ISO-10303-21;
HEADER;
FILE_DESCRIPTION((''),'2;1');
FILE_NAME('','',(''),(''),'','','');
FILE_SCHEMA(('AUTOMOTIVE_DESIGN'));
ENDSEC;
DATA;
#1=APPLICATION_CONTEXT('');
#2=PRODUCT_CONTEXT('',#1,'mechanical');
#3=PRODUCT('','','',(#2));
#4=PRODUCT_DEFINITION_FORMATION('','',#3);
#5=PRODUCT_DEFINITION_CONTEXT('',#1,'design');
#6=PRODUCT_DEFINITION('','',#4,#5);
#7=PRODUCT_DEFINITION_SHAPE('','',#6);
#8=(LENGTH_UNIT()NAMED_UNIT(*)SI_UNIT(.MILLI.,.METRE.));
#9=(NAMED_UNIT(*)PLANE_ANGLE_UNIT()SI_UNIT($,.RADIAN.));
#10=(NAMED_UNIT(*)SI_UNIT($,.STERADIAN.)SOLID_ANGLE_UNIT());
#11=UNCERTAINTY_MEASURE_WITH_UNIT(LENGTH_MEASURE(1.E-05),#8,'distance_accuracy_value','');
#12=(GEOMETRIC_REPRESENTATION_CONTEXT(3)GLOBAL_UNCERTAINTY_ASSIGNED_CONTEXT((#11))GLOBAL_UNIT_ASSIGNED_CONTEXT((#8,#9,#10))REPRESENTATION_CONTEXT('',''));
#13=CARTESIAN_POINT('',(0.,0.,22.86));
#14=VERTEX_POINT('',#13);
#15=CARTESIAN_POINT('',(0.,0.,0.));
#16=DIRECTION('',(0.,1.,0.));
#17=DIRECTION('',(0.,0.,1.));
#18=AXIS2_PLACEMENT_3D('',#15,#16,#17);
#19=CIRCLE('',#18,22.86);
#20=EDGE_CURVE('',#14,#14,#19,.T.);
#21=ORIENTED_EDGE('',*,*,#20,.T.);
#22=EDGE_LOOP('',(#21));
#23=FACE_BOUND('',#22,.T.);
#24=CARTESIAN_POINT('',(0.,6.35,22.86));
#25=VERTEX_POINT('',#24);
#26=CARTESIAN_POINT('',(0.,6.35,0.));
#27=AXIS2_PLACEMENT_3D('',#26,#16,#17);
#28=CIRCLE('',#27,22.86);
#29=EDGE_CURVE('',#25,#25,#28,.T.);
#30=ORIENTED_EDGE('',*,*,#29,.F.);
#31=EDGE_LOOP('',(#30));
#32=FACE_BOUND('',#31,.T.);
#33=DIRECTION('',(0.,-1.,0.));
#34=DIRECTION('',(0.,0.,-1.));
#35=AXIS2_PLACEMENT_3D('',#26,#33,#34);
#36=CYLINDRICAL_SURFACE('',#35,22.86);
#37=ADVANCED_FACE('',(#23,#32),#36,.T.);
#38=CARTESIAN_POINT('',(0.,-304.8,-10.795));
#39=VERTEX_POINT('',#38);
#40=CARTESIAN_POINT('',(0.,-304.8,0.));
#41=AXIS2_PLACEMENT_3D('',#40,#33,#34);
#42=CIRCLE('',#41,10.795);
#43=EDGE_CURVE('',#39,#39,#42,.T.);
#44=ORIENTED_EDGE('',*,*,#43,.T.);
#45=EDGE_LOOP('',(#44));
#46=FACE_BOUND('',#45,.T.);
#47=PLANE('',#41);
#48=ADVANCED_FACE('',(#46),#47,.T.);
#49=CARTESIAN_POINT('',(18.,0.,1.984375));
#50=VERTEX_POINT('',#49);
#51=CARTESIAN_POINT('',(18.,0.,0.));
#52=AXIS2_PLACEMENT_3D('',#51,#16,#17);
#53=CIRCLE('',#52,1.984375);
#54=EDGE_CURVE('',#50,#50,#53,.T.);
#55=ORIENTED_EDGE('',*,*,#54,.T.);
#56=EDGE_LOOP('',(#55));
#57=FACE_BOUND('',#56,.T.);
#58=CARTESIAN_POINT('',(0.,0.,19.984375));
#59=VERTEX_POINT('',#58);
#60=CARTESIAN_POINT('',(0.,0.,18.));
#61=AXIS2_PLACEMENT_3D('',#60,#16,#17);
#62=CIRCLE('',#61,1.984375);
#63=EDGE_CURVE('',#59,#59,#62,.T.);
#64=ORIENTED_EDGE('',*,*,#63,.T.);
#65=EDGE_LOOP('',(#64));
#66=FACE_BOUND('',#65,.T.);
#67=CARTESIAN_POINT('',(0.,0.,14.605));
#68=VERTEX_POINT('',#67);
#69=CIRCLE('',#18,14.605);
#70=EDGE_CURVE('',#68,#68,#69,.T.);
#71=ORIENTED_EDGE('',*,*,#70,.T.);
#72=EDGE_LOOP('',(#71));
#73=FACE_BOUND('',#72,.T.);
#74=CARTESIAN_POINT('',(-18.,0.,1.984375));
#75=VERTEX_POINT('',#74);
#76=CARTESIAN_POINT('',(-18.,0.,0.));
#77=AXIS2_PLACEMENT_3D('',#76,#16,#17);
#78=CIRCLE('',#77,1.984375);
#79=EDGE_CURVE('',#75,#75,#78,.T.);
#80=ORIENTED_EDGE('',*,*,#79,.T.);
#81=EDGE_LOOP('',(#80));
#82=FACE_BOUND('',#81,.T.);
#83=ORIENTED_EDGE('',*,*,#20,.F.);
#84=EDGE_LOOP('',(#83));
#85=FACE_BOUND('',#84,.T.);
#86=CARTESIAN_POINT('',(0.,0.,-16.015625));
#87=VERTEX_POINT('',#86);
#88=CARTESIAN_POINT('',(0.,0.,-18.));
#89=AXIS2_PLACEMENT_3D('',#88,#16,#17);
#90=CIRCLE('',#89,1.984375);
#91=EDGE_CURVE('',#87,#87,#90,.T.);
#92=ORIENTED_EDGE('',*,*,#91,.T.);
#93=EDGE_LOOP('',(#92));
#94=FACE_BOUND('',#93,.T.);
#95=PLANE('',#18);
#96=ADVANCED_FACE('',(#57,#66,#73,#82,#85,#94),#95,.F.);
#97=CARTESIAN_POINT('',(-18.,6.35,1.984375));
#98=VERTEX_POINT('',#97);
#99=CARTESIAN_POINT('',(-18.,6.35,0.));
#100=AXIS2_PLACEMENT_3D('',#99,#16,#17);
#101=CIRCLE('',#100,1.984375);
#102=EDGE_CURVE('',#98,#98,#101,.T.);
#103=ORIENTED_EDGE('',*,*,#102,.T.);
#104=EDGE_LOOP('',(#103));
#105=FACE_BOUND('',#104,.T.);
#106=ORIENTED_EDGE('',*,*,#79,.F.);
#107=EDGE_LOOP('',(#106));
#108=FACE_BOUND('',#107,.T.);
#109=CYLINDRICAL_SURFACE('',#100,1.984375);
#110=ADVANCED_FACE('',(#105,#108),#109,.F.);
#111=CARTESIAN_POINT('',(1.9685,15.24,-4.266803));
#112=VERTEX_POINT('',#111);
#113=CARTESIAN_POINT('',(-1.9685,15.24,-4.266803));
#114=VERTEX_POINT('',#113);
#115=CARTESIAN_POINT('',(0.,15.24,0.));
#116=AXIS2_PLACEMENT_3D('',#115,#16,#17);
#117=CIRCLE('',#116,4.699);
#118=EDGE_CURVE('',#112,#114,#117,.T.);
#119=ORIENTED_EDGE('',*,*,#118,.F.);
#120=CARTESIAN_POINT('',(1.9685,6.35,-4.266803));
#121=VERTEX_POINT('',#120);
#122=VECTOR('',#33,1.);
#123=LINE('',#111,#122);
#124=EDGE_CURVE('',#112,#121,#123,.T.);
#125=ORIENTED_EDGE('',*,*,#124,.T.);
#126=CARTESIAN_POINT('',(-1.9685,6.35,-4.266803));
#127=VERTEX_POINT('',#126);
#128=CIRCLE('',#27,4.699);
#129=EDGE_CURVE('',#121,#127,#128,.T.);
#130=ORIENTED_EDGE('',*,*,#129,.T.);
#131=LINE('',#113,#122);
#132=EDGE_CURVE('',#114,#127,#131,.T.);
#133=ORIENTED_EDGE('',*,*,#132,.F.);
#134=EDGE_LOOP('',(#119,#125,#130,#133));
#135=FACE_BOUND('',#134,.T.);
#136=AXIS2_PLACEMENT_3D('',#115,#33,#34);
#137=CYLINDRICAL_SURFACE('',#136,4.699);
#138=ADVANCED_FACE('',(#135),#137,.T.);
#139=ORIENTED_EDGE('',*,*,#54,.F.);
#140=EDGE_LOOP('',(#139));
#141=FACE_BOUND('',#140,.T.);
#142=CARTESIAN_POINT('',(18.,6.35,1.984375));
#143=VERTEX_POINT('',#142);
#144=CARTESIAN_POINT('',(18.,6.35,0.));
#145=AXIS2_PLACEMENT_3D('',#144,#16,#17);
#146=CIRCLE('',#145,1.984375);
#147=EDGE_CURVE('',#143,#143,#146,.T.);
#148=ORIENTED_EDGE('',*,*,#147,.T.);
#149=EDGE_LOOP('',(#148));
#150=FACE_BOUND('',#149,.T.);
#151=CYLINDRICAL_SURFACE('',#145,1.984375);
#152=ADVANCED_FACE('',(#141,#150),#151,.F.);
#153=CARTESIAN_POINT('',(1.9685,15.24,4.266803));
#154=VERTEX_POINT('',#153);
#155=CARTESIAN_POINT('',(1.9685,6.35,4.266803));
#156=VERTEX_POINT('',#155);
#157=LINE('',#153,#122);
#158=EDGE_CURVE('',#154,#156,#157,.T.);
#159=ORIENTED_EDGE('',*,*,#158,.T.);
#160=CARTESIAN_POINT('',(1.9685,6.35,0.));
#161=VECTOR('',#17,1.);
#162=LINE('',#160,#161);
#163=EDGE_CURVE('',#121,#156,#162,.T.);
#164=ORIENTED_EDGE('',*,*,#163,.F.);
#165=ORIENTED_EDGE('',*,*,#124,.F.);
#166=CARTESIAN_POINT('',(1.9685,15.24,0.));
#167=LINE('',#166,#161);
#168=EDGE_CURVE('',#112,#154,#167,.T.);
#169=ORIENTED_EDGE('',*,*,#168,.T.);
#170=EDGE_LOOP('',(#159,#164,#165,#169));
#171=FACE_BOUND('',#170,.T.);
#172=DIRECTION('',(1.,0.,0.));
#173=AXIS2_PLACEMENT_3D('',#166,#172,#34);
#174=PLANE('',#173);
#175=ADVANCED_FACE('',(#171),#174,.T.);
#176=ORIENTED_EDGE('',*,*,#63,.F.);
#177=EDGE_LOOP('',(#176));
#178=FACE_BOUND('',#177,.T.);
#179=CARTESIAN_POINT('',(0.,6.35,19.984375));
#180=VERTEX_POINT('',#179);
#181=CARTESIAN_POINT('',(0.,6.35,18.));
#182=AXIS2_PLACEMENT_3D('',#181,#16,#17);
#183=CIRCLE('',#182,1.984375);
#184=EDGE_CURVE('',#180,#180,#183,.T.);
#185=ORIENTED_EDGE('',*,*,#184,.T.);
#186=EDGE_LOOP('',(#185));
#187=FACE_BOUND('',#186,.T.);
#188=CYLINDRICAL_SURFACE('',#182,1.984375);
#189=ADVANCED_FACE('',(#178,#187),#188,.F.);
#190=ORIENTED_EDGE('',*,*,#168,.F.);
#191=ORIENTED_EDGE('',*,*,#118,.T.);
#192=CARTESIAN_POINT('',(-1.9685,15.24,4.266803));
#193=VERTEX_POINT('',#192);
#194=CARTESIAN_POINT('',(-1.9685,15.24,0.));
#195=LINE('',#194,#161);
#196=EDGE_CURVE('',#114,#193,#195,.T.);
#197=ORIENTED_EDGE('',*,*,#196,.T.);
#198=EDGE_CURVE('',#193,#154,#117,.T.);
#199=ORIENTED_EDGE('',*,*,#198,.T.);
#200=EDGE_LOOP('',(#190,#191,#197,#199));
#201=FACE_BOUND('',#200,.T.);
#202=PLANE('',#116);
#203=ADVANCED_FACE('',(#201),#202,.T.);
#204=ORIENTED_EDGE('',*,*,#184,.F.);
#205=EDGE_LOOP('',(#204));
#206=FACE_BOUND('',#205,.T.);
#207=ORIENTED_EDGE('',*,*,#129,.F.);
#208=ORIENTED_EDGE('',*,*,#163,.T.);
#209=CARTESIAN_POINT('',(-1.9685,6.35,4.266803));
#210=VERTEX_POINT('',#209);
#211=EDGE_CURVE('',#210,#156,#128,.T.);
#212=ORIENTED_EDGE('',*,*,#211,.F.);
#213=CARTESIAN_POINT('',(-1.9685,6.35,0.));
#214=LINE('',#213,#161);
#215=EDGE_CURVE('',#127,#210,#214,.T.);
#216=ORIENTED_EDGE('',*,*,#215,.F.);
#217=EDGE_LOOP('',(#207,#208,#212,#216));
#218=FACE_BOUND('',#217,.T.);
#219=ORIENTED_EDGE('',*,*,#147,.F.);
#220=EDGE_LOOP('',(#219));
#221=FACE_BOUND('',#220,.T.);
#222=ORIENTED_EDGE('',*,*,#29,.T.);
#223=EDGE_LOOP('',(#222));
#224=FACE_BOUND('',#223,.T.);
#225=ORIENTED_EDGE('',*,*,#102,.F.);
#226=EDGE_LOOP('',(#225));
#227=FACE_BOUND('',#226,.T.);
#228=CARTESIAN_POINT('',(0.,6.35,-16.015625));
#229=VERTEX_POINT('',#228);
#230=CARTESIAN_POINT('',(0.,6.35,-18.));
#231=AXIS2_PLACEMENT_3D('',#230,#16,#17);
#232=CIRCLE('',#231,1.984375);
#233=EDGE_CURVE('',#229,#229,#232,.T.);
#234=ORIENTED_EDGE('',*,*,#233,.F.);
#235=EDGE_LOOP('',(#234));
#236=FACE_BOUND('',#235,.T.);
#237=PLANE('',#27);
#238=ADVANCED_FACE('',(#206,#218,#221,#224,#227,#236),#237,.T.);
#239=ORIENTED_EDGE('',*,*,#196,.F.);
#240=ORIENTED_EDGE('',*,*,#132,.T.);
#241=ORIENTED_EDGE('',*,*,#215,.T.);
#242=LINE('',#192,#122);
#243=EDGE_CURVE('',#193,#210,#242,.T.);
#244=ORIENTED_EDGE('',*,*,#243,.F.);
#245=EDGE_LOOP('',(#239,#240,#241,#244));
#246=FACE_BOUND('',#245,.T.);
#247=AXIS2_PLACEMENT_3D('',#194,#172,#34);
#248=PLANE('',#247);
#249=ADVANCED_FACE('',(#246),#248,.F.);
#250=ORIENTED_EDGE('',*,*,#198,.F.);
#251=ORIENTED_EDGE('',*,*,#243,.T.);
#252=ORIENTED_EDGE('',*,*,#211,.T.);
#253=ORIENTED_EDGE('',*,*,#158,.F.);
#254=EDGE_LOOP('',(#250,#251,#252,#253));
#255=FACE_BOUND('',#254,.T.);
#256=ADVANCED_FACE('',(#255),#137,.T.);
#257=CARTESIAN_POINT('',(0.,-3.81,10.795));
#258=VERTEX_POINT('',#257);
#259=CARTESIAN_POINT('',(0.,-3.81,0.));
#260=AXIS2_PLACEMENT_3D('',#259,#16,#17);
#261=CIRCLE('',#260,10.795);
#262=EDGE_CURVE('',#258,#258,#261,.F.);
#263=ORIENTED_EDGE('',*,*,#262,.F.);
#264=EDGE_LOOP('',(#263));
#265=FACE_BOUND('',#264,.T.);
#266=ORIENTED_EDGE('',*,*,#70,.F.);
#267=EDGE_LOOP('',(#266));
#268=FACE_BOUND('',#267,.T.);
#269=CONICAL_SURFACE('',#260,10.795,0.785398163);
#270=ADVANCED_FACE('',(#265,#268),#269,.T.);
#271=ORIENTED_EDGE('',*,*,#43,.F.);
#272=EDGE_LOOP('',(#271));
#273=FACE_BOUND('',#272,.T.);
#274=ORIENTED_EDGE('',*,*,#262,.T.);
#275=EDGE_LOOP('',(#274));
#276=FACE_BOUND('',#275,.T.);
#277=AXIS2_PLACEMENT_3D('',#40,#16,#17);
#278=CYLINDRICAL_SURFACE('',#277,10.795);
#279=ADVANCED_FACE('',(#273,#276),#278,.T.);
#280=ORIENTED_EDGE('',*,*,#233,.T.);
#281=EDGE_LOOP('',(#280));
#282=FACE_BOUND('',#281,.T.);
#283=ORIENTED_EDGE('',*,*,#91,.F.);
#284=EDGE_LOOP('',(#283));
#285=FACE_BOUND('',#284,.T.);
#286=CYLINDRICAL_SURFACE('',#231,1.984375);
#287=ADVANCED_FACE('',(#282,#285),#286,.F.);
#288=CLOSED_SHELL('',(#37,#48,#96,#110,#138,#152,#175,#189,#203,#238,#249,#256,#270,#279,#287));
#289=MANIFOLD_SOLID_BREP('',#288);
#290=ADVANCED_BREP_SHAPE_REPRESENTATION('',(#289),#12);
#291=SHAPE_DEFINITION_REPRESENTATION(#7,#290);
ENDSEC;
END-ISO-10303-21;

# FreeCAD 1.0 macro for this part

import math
import FreeCAD as App
import Part
import Sketcher
from FreeCAD import Vector
Q = App.Units.Quantity


def edges_at(feature, points):
    """Names of the edges that pass closest to the given points."""
    edges = feature.Shape.Edges
    near = lambda p: min(range(len(edges)), key=lambda i: edges[i].distToShape(Part.Vertex(*p))[0])
    return sorted({f"Edge{near(p) + 1}" for p in points})

doc = App.newDocument("Part")
body = doc.addObject("PartDesign::Body", "Body")

# Sketch on XZ plane
sketch1 = doc.addObject("Sketcher::SketchObject", "Sketch")
body.addObject(sketch1)
sketch1.AttachmentSupport = (doc.XZ_Plane, [""])
sketch1.MapMode = "FlatFace"
sketch1.addGeometry(Part.Circle(Vector(0, 0, 0), Vector(0, 0, 1), 23), False)
sketch1.addConstraint([
    Sketcher.Constraint("Coincident", 0, 3, -1, 1),
    Sketcher.Constraint("Diameter", 0, Q("1.8 in")),
])
pad1 = doc.addObject("PartDesign::Pad", "Pad")
body.addObject(pad1)
pad1.Profile = sketch1
pad1.Length = Q("0.25 in")
pad1.Reversed = True

# Sketch on XZ plane
sketch2 = doc.addObject("Sketcher::SketchObject", "Sketch001")
body.addObject(sketch2)
sketch2.AttachmentSupport = (doc.XZ_Plane, [""])
sketch2.MapMode = "FlatFace"
sketch2.AttachmentOffset = App.Placement(Vector(0, 0, -0.25 * 25.4), App.Rotation())
sketch2.addGeometry([
    Part.LineSegment(Vector(2, 4.3, 0), Vector(2, -4.3, 0)),
    Part.ArcOfCircle(Part.Circle(Vector(0, 0, 0), Vector(0, 0, 1), 4.7), math.radians(-115), math.radians(-65)),
    Part.LineSegment(Vector(-2, -4.3, 0), Vector(-2, 4.3, 0)),
    Part.ArcOfCircle(Part.Circle(Vector(0, 0, 0), Vector(0, 0, 1), 4.7), math.radians(65), math.radians(115)),
], False)
sketch2.addConstraint([
    Sketcher.Constraint("Coincident", 0, 2, 1, 2),
    Sketcher.Constraint("Coincident", 1, 1, 2, 1),
    Sketcher.Constraint("Coincident", 2, 2, 3, 2),
    Sketcher.Constraint("Coincident", 3, 1, 0, 1),
    Sketcher.Constraint("Vertical", 0),
    Sketcher.Constraint("Vertical", 2),
    Sketcher.Constraint("Coincident", 1, 3, -1, 1),
    Sketcher.Constraint("Coincident", 3, 3, -1, 1),
    Sketcher.Constraint("Equal", 1, 3),
    Sketcher.Constraint("Horizontal", 0, 2, 1, 1),
    Sketcher.Constraint("Radius", 1, Q("0.185 in")),
    Sketcher.Constraint("DistanceX", 1, 1, 0, 2, Q("0.155 in")),
])
pad2 = doc.addObject("PartDesign::Pad", "Pad001")
body.addObject(pad2)
pad2.Profile = sketch2
pad2.Length = Q("0.35 in")
pad2.Reversed = True

# Sketch on XZ plane
sketch3 = doc.addObject("Sketcher::SketchObject", "Sketch002")
body.addObject(sketch3)
sketch3.AttachmentSupport = (doc.XZ_Plane, [""])
sketch3.MapMode = "FlatFace"
sketch3.addGeometry(Part.Circle(Vector(0, 0, 0), Vector(0, 0, 1), 11), False)
sketch3.addConstraint([
    Sketcher.Constraint("Coincident", 0, 3, -1, 1),
    Sketcher.Constraint("Diameter", 0, Q("0.85 in")),
])
pad3 = doc.addObject("PartDesign::Pad", "Pad002")
body.addObject(pad3)
pad3.Profile = sketch3
pad3.Length = Q("12 in")
doc.recompute()

chamfer = doc.addObject("PartDesign::Chamfer", "Chamfer")
body.addObject(chamfer)
chamfer.Base = (pad3, edges_at(pad3, [(-10.795, 0, 0)]))
chamfer.Size = Q("0.15 in")

# Sketch on XZ plane
sketch4 = doc.addObject("Sketcher::SketchObject", "Sketch003")
body.addObject(sketch4)
sketch4.AttachmentSupport = (doc.XZ_Plane, [""])
sketch4.MapMode = "FlatFace"
sketch4.AttachmentOffset = App.Placement(Vector(0, 0, -0.25 * 25.4), App.Rotation())
sketch4.addGeometry(Part.Circle(Vector(0, -18, 0), Vector(0, 0, 1), 2), False)
sketch4.addConstraint([
    Sketcher.Constraint("PointOnObject", 0, 3, -2),
    Sketcher.Constraint("Diameter", 0, Q("0.15625 in")),
    Sketcher.Constraint("DistanceY", 0, 3, -1, 1, Q("18 mm")),
])
doc.recompute()
hole = doc.addObject("PartDesign::Hole", "Hole")
body.addObject(hole)
hole.Profile = sketch4
hole.ThreadType = "None"
hole.Diameter = Q("0.15625 in")
hole.DepthType = "Dimension"
hole.Depth = 6.351
hole.DrillPoint = "Flat"
hole.Reversed = True
doc.recompute()

polarpattern = doc.addObject("PartDesign::PolarPattern", "PolarPattern")
body.addObject(polarpattern)
polarpattern.Originals = [hole]
polarpattern.Axis = (doc.Y_Axis, [""])
polarpattern.Angle = 360
polarpattern.Occurrences = 4
body.Tip = polarpattern

doc.recompute()
